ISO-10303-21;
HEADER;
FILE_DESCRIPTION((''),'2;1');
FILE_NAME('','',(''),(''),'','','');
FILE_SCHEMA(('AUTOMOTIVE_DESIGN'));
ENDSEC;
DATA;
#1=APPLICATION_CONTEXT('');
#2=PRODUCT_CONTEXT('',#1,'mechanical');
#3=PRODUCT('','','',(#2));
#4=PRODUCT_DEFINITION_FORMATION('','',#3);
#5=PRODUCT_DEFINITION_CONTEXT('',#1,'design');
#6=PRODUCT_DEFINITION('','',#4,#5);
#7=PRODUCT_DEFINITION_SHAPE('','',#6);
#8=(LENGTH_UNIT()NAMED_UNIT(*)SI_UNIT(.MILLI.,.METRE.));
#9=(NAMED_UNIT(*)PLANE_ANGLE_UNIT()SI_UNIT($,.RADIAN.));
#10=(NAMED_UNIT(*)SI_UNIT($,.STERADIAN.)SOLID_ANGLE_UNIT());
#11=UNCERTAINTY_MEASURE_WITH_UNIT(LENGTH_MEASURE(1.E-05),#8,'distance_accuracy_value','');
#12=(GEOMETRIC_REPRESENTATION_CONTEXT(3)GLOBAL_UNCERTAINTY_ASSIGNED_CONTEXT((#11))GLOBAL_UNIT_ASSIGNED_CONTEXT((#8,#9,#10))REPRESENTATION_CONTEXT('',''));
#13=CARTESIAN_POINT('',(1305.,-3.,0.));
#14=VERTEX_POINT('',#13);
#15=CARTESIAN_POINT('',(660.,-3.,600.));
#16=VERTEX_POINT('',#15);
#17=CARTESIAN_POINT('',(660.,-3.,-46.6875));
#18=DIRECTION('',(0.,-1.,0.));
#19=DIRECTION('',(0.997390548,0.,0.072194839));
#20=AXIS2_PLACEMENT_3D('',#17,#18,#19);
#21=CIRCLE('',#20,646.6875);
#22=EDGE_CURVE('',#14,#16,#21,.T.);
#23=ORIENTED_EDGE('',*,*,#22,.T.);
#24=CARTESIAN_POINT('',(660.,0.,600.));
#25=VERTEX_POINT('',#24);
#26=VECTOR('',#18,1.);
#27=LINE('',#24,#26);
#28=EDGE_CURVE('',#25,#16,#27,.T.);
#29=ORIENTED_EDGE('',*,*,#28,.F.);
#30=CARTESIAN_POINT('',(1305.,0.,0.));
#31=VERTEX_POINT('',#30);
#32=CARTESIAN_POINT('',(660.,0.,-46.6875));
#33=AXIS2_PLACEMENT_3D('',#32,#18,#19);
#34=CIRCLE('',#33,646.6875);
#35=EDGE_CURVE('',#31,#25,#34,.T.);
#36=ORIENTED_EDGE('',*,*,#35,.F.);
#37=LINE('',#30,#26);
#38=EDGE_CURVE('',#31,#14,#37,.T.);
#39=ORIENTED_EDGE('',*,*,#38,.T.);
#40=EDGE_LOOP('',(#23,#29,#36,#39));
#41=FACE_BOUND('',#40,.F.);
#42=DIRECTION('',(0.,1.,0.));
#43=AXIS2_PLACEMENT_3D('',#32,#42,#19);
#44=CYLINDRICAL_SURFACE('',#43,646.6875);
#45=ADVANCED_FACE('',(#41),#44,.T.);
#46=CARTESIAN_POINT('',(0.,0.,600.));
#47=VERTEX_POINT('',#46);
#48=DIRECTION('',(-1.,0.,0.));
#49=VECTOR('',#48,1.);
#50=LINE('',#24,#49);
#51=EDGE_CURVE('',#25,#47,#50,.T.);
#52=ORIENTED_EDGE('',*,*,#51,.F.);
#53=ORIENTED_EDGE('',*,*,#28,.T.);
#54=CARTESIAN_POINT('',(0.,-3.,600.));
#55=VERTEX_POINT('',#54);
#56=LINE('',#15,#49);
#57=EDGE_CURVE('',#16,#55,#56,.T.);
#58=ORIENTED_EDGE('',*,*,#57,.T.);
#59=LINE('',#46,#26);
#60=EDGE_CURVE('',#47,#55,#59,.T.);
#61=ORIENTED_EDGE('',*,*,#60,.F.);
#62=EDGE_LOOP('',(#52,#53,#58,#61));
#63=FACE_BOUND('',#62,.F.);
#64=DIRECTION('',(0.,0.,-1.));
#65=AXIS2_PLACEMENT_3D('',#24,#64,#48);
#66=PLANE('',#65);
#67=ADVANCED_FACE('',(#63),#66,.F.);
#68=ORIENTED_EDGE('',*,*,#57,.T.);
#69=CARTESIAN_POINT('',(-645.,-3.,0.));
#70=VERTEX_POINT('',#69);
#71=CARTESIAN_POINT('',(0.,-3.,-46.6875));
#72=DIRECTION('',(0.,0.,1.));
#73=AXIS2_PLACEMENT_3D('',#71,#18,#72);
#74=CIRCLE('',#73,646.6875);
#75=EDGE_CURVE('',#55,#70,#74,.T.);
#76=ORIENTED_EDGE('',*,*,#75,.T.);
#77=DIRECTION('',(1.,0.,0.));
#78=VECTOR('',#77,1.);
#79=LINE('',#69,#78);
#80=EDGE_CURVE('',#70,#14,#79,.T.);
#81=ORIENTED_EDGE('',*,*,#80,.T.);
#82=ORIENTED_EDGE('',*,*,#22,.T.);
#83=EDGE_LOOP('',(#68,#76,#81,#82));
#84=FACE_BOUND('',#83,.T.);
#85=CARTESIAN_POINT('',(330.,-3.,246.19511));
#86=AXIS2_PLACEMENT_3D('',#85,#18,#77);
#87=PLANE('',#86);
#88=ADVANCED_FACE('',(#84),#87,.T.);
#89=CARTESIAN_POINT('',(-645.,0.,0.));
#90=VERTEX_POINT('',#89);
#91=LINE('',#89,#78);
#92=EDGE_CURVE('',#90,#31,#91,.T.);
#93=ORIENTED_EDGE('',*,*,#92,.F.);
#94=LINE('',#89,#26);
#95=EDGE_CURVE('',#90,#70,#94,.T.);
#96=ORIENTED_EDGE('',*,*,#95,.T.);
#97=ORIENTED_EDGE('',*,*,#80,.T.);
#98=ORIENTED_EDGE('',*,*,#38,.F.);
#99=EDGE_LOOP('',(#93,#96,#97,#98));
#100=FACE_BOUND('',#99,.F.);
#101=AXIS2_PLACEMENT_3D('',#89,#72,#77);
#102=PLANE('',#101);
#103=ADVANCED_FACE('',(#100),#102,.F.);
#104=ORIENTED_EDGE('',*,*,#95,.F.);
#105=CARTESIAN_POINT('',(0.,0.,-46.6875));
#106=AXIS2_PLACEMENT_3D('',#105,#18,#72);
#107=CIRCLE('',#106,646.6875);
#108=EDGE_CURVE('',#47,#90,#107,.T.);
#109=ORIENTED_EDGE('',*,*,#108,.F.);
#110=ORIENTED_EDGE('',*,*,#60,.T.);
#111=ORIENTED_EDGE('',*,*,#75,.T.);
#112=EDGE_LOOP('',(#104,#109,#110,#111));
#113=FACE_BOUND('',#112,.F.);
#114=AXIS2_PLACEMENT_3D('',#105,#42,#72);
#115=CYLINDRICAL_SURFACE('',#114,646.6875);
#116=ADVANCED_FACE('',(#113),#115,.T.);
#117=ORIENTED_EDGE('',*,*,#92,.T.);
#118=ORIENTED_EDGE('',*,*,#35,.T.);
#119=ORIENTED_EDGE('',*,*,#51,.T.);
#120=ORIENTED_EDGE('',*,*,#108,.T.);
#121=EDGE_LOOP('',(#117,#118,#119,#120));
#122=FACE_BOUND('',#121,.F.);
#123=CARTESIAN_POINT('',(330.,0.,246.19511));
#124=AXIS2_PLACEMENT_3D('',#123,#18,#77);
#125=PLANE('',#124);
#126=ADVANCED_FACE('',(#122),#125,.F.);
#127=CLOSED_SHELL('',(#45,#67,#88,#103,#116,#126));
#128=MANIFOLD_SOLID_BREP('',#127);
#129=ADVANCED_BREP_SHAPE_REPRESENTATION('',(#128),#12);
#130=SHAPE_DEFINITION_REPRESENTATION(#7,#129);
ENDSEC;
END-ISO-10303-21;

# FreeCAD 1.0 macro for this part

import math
import FreeCAD as App
import Part
import Sketcher
from FreeCAD import Vector

doc = App.newDocument("Part")
params = doc.addObject("Spreadsheet::Sheet", "Params")
for row, (alias, value) in enumerate([
    ("sketch1_width", "1950 mm"),
    ("sketch1_width2", "660 mm"),
    ("pad1_length", "3 mm"),
], start=1):
    params.set(f"A{row}", alias)
    params.set(f"B{row}", "=" + value)
    params.setAlias(f"B{row}", alias)

body = doc.addObject("PartDesign::Body", "Body")

sketch1 = doc.addObject("Sketcher::SketchObject", "Sketch")
body.addObject(sketch1)
sketch1.AttachmentSupport = (doc.XZ_Plane, [""])
sketch1.MapMode = "FlatFace"
sketch1.addGeometry([
    Part.LineSegment(Vector(-645, 0, 0), Vector(1305, 0, 0)),
    Part.ArcOfCircle(Part.Circle(Vector(660, -47, 0), Vector(0, 0, 1), 647), math.radians(4), math.radians(90)),
    Part.LineSegment(Vector(660, 600, 0), Vector(0, 600, 0)),
    Part.ArcOfCircle(Part.Circle(Vector(0, -47, 0), Vector(0, 0, 1), 647), math.radians(90), math.radians(176)),
], False)
sketch1.addConstraint([
    Sketcher.Constraint("Coincident", 0, 2, 1, 1),
    Sketcher.Constraint("Tangent", 1, 2, 2, 1),
    Sketcher.Constraint("Tangent", 2, 2, 3, 1),
    Sketcher.Constraint("Coincident", 3, 2, 0, 1),
    Sketcher.Constraint("Horizontal", 0),
    Sketcher.Constraint("Horizontal", 2),
    Sketcher.Constraint("Equal", 1, 3),
    Sketcher.Constraint("PointOnObject", 3, 3, -2),
    Sketcher.Constraint("PointOnObject", 0, 2, -1),
    Sketcher.Constraint("DistanceX", 0, 1, 0, 2, 1950.0),
    Sketcher.Constraint("DistanceX", 2, 2, 2, 1, 660.0),
    Sketcher.Constraint("DistanceY", -1, 1, 1, 2, 600.0),
])
sketch1.setExpression("Constraints[9]", "Params.sketch1_width")
sketch1.setExpression("Constraints[10]", "Params.sketch1_width2")
pad1 = doc.addObject("PartDesign::Pad", "Pad")
body.addObject(pad1)
pad1.Profile = sketch1
pad1.setExpression("Length", "Params.pad1_length")

doc.recompute()
